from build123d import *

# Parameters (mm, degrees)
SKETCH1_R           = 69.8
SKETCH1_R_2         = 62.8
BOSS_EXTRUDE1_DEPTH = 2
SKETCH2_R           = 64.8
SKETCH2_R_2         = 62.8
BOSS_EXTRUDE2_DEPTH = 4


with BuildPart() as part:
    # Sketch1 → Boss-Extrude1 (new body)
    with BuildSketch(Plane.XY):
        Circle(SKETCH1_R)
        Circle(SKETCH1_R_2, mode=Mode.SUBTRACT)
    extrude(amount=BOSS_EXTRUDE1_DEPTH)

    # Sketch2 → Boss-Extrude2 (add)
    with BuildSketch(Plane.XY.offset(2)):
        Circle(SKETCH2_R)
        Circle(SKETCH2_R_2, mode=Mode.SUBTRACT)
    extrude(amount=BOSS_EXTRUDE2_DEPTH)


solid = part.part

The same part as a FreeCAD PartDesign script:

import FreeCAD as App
import Part
import Sketcher
from FreeCAD import Vector
Q = App.Units.Quantity

doc = App.newDocument("Part")
body = doc.addObject("PartDesign::Body", "Body")

sketch1 = body.newObject("Sketcher::SketchObject", "Sketch")
sketch1.AttachmentSupport = (doc.getObject("XY_Plane"), [""])
sketch1.MapMode = "FlatFace"
sketch1.addGeometry(Part.Circle(Vector(0, 0, 0), Vector(0, 0, 1), 70), False)
sketch1.addGeometry(Part.Circle(Vector(0, 0, 0), Vector(0, 0, 1), 63), False)
sketch1.addConstraint(Sketcher.Constraint("Coincident", 0, 3, -1, 1))
sketch1.addConstraint(Sketcher.Constraint("Coincident", 1, 3, -1, 1))
sketch1.addConstraint(Sketcher.Constraint("Diameter", 0, Q("139.6 mm")))
sketch1.addConstraint(Sketcher.Constraint("Diameter", 1, Q("125.6 mm")))
pad1 = body.newObject("PartDesign::Pad", "Pad")
pad1.Profile = sketch1
pad1.Length = 2

sketch2 = body.newObject("Sketcher::SketchObject", "Sketch001")
sketch2.AttachmentSupport = (doc.getObject("XY_Plane"), [""])
sketch2.MapMode = "FlatFace"
sketch2.AttachmentOffset = App.Placement(Vector(0, 0, 2), App.Rotation())
sketch2.addGeometry(Part.Circle(Vector(0, 0, 0), Vector(0, 0, 1), 65), False)
sketch2.addGeometry(Part.Circle(Vector(0, 0, 0), Vector(0, 0, 1), 63), False)
sketch2.addConstraint(Sketcher.Constraint("Coincident", 0, 3, -1, 1))
sketch2.addConstraint(Sketcher.Constraint("Coincident", 1, 3, -1, 1))
sketch2.addConstraint(Sketcher.Constraint("Diameter", 0, Q("129.6 mm")))
sketch2.addConstraint(Sketcher.Constraint("Diameter", 1, Q("125.6 mm")))
pad2 = body.newObject("PartDesign::Pad", "Pad001")
pad2.Profile = sketch2
pad2.Length = 4

doc.recompute()
